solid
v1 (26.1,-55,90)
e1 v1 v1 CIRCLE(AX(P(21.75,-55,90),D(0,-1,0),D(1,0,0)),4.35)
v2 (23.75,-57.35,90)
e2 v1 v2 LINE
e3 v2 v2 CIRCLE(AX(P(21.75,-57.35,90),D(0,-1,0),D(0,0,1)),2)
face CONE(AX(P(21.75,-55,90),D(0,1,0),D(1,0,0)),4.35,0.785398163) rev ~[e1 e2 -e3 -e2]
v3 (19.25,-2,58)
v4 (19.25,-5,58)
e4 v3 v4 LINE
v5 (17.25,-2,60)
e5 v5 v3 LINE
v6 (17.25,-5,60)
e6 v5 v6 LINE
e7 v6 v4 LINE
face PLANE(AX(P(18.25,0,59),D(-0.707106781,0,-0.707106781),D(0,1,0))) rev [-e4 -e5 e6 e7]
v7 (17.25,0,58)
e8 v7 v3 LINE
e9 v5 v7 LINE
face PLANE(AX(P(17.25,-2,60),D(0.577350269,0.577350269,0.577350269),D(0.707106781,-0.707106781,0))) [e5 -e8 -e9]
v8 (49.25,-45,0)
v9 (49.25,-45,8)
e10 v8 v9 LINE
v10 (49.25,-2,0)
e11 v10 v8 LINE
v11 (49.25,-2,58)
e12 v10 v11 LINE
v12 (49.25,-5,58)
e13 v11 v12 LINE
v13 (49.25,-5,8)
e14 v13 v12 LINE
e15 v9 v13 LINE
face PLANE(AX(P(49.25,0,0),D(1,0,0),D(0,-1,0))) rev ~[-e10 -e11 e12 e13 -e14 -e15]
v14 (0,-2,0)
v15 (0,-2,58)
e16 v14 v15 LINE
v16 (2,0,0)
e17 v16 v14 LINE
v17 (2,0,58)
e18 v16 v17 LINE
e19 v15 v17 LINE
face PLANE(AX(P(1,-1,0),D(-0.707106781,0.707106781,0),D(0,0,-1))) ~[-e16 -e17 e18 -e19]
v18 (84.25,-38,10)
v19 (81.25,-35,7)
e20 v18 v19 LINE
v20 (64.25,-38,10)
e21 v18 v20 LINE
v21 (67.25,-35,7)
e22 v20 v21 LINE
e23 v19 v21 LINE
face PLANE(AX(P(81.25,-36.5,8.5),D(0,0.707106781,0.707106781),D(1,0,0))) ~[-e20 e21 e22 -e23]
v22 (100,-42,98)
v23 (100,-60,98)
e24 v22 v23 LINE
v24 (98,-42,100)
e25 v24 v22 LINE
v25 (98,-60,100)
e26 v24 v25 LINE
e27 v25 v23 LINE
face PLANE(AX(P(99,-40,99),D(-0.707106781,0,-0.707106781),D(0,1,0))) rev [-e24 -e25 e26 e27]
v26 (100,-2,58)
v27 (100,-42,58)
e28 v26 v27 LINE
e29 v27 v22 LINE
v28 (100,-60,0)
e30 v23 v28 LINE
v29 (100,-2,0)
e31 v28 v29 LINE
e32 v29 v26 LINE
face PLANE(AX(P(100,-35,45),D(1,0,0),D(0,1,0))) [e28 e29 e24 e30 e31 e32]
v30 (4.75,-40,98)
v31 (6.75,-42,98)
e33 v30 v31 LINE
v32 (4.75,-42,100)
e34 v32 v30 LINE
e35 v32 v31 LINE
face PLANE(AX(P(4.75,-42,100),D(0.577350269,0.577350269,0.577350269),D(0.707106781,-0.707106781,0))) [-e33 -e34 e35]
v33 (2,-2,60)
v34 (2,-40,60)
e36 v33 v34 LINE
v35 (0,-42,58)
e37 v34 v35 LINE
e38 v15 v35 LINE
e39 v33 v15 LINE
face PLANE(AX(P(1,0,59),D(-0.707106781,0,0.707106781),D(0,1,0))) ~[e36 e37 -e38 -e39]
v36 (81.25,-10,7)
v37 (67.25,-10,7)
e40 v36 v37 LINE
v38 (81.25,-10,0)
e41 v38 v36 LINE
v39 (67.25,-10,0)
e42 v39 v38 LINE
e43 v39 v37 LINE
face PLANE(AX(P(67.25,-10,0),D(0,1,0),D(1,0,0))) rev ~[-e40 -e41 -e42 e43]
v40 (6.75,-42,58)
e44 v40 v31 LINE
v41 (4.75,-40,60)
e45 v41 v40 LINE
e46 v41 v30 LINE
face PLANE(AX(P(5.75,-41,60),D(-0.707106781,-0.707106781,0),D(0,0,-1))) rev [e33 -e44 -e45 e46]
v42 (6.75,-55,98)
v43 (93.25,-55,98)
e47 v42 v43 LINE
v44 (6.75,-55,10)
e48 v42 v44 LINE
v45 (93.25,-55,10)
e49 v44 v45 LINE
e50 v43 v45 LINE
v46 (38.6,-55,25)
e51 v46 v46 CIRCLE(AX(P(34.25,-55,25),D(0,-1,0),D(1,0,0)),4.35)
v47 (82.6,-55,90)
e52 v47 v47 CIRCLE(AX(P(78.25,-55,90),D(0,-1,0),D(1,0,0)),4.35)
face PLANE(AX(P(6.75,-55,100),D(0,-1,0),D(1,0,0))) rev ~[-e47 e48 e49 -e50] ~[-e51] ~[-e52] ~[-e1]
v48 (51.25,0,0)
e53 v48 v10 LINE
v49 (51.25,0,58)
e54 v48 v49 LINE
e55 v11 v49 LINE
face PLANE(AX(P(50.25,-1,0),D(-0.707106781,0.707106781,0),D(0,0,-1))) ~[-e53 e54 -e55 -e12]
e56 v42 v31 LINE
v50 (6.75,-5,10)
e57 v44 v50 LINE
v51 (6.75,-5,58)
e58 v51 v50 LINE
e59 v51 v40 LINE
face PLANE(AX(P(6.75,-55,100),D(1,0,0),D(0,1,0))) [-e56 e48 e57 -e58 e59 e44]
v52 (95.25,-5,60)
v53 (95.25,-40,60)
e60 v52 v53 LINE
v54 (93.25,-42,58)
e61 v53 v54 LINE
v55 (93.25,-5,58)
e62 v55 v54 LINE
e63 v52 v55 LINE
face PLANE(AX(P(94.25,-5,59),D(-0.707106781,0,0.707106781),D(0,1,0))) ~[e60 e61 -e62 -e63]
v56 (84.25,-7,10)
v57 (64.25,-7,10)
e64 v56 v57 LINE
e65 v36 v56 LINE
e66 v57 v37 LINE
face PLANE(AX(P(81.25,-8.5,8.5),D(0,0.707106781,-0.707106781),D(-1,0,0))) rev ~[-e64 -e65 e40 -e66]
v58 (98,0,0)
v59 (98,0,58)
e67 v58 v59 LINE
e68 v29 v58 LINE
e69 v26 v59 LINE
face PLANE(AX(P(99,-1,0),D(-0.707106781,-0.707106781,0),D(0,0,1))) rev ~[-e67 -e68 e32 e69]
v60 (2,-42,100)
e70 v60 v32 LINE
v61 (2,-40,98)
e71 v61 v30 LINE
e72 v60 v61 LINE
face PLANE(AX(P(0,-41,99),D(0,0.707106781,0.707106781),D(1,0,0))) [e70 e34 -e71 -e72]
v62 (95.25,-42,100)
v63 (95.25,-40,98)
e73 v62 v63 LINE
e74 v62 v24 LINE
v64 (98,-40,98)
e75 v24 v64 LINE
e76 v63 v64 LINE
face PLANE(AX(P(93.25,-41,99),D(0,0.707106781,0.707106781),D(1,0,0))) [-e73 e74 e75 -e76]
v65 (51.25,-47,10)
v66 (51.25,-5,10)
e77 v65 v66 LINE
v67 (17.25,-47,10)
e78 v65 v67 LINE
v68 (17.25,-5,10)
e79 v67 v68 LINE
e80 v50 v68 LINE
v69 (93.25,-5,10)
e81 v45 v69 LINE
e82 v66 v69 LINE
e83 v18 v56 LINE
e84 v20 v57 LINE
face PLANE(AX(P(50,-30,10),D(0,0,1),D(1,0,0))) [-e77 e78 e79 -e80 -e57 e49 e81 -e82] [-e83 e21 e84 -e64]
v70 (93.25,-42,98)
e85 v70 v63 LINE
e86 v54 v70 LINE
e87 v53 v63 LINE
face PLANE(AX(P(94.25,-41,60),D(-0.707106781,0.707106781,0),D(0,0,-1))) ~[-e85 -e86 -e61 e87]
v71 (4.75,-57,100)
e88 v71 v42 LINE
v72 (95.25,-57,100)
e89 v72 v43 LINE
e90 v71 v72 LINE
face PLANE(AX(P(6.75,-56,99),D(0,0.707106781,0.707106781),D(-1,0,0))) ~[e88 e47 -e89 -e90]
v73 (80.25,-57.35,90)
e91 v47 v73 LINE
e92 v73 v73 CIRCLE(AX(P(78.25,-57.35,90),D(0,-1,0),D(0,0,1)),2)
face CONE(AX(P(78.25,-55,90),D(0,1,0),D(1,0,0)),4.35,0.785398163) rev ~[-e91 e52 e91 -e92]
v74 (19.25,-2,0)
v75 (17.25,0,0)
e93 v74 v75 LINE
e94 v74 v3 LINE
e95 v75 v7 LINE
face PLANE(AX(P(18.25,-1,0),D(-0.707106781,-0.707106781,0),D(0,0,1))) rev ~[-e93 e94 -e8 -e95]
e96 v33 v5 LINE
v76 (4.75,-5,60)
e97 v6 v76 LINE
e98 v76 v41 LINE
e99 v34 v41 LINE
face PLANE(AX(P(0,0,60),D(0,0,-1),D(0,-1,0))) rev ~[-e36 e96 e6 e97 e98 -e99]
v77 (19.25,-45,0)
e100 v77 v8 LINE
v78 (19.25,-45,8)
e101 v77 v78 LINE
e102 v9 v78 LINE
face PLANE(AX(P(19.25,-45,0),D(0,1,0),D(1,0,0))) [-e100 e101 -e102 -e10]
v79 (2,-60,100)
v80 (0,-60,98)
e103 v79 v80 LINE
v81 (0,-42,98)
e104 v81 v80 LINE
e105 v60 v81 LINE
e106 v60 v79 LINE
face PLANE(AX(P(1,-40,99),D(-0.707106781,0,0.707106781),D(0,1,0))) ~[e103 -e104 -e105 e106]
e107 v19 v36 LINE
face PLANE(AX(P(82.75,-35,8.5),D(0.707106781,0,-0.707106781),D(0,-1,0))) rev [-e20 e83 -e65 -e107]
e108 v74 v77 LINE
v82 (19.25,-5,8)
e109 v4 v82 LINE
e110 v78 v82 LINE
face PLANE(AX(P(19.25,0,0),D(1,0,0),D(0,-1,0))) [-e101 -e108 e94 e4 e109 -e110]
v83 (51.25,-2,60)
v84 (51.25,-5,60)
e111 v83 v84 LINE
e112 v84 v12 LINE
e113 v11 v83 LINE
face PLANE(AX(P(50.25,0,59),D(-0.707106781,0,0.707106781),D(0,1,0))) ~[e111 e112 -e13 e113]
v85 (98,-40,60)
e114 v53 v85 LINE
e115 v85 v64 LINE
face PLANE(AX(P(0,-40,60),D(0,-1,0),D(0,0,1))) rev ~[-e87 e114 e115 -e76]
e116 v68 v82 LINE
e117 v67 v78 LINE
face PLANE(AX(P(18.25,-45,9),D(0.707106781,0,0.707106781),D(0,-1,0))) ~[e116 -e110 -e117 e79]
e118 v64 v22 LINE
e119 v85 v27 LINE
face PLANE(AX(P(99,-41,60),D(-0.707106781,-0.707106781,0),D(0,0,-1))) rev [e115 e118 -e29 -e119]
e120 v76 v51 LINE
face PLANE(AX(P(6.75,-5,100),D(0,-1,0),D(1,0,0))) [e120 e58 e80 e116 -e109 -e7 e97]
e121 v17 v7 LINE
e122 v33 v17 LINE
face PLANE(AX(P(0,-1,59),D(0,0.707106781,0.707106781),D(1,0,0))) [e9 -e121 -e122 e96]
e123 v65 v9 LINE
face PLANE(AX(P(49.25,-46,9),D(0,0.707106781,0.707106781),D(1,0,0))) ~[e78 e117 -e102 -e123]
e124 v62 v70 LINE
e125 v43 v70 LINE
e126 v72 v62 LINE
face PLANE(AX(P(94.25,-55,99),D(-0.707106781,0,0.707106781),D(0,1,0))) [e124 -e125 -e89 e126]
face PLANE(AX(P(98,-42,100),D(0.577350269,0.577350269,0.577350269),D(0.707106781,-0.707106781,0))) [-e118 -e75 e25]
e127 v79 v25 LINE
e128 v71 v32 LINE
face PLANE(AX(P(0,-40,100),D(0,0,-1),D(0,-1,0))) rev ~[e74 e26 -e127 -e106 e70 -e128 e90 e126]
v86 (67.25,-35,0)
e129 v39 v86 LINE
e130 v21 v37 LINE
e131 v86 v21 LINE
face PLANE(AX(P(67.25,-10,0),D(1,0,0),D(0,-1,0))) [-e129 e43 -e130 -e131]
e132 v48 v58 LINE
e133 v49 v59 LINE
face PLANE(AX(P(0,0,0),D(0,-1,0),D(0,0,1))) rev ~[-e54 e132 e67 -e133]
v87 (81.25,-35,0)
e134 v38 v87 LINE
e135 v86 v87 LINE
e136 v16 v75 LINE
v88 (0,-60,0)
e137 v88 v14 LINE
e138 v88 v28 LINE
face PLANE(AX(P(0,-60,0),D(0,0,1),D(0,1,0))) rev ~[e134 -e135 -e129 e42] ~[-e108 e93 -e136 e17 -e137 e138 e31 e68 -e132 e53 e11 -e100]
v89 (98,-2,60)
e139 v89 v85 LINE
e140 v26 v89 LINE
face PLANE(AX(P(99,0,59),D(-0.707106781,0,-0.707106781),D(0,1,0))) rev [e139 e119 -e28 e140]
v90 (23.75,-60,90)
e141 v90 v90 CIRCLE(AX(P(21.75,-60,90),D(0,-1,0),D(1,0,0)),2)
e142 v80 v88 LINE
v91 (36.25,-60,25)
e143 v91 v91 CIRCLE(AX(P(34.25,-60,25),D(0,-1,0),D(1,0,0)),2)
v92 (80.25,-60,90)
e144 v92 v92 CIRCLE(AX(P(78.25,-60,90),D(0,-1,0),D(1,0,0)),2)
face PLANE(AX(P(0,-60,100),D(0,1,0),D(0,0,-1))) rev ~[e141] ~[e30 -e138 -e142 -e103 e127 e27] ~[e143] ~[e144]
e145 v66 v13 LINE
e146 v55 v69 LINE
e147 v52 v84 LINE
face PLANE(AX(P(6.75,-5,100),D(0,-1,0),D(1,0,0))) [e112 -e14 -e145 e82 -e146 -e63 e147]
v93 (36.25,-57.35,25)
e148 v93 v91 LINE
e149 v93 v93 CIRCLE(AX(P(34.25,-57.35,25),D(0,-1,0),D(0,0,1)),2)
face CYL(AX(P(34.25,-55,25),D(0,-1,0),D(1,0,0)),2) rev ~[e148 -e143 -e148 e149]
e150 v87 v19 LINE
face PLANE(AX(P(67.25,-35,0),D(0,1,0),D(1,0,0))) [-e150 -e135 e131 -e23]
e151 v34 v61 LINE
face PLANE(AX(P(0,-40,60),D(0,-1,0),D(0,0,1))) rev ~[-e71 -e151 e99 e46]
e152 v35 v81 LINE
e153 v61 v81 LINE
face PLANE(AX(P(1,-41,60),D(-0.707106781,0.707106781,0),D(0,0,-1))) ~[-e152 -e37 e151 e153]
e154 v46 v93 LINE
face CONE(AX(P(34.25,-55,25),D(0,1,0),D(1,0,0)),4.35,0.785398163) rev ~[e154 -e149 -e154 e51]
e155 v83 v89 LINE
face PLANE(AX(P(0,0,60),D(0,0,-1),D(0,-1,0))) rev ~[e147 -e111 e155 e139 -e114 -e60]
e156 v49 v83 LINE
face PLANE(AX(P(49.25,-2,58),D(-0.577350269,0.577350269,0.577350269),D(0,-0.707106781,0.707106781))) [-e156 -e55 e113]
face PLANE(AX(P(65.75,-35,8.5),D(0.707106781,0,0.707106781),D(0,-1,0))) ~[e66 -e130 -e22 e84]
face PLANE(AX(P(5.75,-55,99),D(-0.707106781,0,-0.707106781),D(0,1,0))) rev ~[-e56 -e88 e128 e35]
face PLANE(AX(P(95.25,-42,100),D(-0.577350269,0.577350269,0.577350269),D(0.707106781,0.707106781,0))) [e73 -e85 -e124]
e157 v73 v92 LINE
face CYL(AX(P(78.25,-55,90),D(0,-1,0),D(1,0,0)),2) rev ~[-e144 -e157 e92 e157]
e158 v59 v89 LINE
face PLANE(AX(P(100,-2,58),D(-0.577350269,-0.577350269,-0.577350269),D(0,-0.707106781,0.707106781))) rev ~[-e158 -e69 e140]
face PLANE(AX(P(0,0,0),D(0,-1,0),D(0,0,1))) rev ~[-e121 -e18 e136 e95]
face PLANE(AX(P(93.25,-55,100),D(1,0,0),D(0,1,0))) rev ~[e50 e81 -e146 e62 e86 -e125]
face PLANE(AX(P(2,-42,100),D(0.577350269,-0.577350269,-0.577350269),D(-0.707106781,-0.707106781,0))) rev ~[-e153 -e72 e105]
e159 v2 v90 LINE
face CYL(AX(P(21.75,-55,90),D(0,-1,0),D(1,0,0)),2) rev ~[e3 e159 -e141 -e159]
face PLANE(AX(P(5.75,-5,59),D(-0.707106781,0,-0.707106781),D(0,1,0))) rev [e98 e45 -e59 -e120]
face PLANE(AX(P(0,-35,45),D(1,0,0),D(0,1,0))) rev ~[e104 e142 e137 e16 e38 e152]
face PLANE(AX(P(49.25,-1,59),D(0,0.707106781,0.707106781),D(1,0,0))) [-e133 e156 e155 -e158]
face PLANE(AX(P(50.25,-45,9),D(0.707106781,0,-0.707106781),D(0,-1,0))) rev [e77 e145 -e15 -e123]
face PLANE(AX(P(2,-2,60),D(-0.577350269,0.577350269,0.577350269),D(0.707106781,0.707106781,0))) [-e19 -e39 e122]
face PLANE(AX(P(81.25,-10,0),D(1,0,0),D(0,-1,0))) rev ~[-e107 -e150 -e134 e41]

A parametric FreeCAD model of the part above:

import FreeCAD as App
import Part
import Sketcher

V = App.Vector


def edges_at(feature, points):
    """Names of the edges that pass closest to the given points."""
    edges = feature.Shape.Edges
    near = lambda p: min(range(len(edges)), key=lambda i: edges[i].distToShape(Part.Vertex(*p))[0])
    return sorted({f"Edge{near(p) + 1}" for p in points})


def add_polygon(sketch, points):
    """Adds a closed chain of lines whose ends are joined by coincident constraints."""
    first, n = sketch.GeometryCount, len(points)
    for a, b in zip(points, points[1:] + points[:1]):
        sketch.addGeometry(Part.LineSegment(App.Vector(*a, 0), App.Vector(*b, 0)), False)
    for i in range(n):
        sketch.addConstraint(Sketcher.Constraint("Coincident", first + i, 2, first + (i + 1) % n, 1))

doc = App.newDocument("Part")
params = doc.addObject("Spreadsheet::Sheet", "Params")
for row, (alias, value) in enumerate([
    ("sketch1_width", "60 mm"),
    ("sketch1_width2", "40 mm"),
    ("pad1_length", "100 mm"),
    ("sketch2_height", "50 mm"),
    ("sketch2_width", "86.5 mm"),
    ("pocket1_length", "90 mm"),
    ("sketch3_width", "30 mm"),
    ("sketch3_width2", "14 mm"),
    ("sketch3_height", "45 mm"),
    ("sketch3_height2", "25 mm"),
    ("pocket2_length", "60 mm"),
    ("sketch4_diameter", "4 mm"),
    ("hole_diameter", "4 mm"),
    ("hole_csink_diameter", "8.7 mm"),
    ("chamfer_size", "2 mm"),
    ("chamfer2_size", "3 mm"),
], start=1):
    params.set(f"A{row}", alias)
    params.set(f"B{row}", "=" + value)
    params.setAlias(f"B{row}", alias)

body = doc.addObject("PartDesign::Body", "Body")

sketch1 = body.newObject("Sketcher::SketchObject", "Sketch")
sketch1.AttachmentSupport = (doc.getObject("YZ_Plane"), [""])
sketch1.MapMode = "FlatFace"
add_polygon(sketch1, [(-60, 0), (0, 0), (0, 60), (-40, 60), (-40, 100), (-60, 100)])
sketch1.addConstraint([
    Sketcher.Constraint("Horizontal", 0),
    Sketcher.Constraint("Vertical", 1),
    Sketcher.Constraint("Horizontal", 2),
    Sketcher.Constraint("Vertical", 3),
    Sketcher.Constraint("Horizontal", 4),
    Sketcher.Constraint("Vertical", 5),
    Sketcher.Constraint("Coincident", 0, 2, -1, 1),
    Sketcher.Constraint("Equal", 0, 1),
    Sketcher.Constraint("Equal", 2, 3),
    Sketcher.Constraint("DistanceX", 0, 1, 0, 2, 60.0),
    Sketcher.Constraint("DistanceX", 2, 2, 2, 1, 40.0),
])
sketch1.setExpression("Constraints[15]", "Params.sketch1_width")
sketch1.setExpression("Constraints[16]", "Params.sketch1_width2")
pad1 = body.newObject("PartDesign::Pad", "Pad")
pad1.Profile = sketch1
pad1.setExpression("Length", "Params.pad1_length")

sketch2 = body.newObject("Sketcher::SketchObject", "Sketch001")
sketch2.AttachmentSupport = (doc.getObject("XY_Plane"), [""])
sketch2.MapMode = "FlatFace"
sketch2.AttachmentOffset = App.Placement(V(0, 0, 100), App.Rotation())
add_polygon(sketch2, [(6.75, -5), (6.75, -55), (93.25, -55), (93.25, -5)])
sketch2.addConstraint([
    Sketcher.Constraint("Vertical", 0),
    Sketcher.Constraint("Horizontal", 1),
    Sketcher.Constraint("Vertical", 2),
    Sketcher.Constraint("Horizontal", 3),
    Sketcher.Constraint("DistanceY", 0, 2, 0, 1, 50.0),
    Sketcher.Constraint("DistanceX", 1, 1, 1, 2, 86.5),
    Sketcher.Constraint("DistanceY", 0, 2, -1, 1, 55.0),
    Sketcher.Constraint("DistanceX", -1, 1, 0, 2, 6.75),
])
sketch2.setExpression("Constraints[8]", "Params.sketch2_height")
sketch2.setExpression("Constraints[9]", "Params.sketch2_width")
pocket1 = body.newObject("PartDesign::Pocket", "Pocket")
pocket1.Profile = sketch2
pocket1.setExpression("Length", "Params.pocket1_length")

sketch3 = body.newObject("Sketcher::SketchObject", "Sketch002")
sketch3.AttachmentSupport = (doc.getObject("XY_Plane"), [""])
sketch3.MapMode = "FlatFace"
add_polygon(sketch3, [(19.25, -45), (19.25, 0), (49.25, 0), (49.25, -45)])
add_polygon(sketch3, [(67.25, -35), (67.25, -10), (81.25, -10), (81.25, -35)])
sketch3.addConstraint([
    Sketcher.Constraint("Vertical", 0),
    Sketcher.Constraint("Horizontal", 1),
    Sketcher.Constraint("Vertical", 2),
    Sketcher.Constraint("Horizontal", 3),
    Sketcher.Constraint("Vertical", 4),
    Sketcher.Constraint("Horizontal", 5),
    Sketcher.Constraint("Vertical", 6),
    Sketcher.Constraint("Horizontal", 7),
    Sketcher.Constraint("PointOnObject", 0, 2, -1),
    Sketcher.Constraint("DistanceX", 1, 1, 1, 2, 30.0),
    Sketcher.Constraint("DistanceX", 5, 1, 5, 2, 14.0),
    Sketcher.Constraint("DistanceY", 0, 1, 0, 2, 45.0),
    Sketcher.Constraint("DistanceY", 4, 1, 4, 2, 25.0),
    Sketcher.Constraint("DistanceY", 4, 2, -1, 1, 10.0),
    Sketcher.Constraint("DistanceX", 1, 2, 4, 2, 18.0),
    Sketcher.Constraint("DistanceX", -1, 1, 0, 2, 19.25),
])
sketch3.setExpression("Constraints[17]", "Params.sketch3_width")
sketch3.setExpression("Constraints[18]", "Params.sketch3_width2")
sketch3.setExpression("Constraints[19]", "Params.sketch3_height")
sketch3.setExpression("Constraints[20]", "Params.sketch3_height2")
pocket2 = body.newObject("PartDesign::Pocket", "Pocket001")
pocket2.Profile = sketch3
pocket2.setExpression("Length", "Params.pocket2_length")
pocket2.Reversed = True

sketch4 = body.newObject("Sketcher::SketchObject", "Sketch003")
sketch4.AttachmentSupport = (doc.getObject("XZ_Plane"), [""])
sketch4.MapMode = "FlatFace"
sketch4.AttachmentOffset = App.Placement(V(0, 0, 55), App.Rotation())
sketch4.addGeometry([
    Part.Circle(V(78.25, 90, 0), V(0, 0, 1), 2),
    Part.Circle(V(21.75, 90, 0), V(0, 0, 1), 2),
    Part.Circle(V(34.25, 25, 0), V(0, 0, 1), 2),
], False)
sketch4.addConstraint([
    Sketcher.Constraint("Equal", 0, 1),
    Sketcher.Constraint("Equal", 1, 2),
    Sketcher.Constraint("Horizontal", 0, 3, 1, 3),
    Sketcher.Constraint("Diameter", 0, 4.0),
    Sketcher.Constraint("DistanceY", -1, 1, 0, 3, 90.0),
    Sketcher.Constraint("DistanceY", -1, 1, 2, 3, 25.0),
    Sketcher.Constraint("DistanceX", 2, 3, 0, 3, 44.0),
    Sketcher.Constraint("DistanceX", 1, 3, 0, 3, 56.5),
    Sketcher.Constraint("DistanceX", -1, 1, 0, 3, 78.25),
])
sketch4.setExpression("Constraints[3]", "Params.sketch4_diameter")
doc.recompute()
hole = body.newObject("PartDesign::Hole", "Hole")
hole.Profile = sketch4
hole.ThreadType = "None"
hole.setExpression("Diameter", "Params.hole_diameter")
hole.DepthType = "ThroughAll"
hole.HoleCutType = "Countersink"
hole.setExpression("HoleCutDiameter", "Params.hole_csink_diameter")
hole.HoleCutCountersinkAngle = 90
hole.Reversed = True
doc.recompute()

chamfer = body.newObject("PartDesign::Chamfer", "Chamfer")
chamfer.Base = (hole, edges_at(hole, [
    (74.625, 0, 60),
    (100, 0, 30),
    (0, 0, 30),
    (19.25, 0, 30),
    (49.25, -25, 10),
    (34.25, -45, 10),
    (49.25, 0, 30),
    (100, -20, 60),
    (93.25, -22.5, 60),
    (6.75, -22.5, 60),
    (0, -20, 60),
    (9.625, 0, 60),
    (0, -40, 80),
    (6.75, -40, 80),
    (93.25, -40, 80),
    (100, -40, 80),
    (3.375, -40, 100),
    (0, -50, 100),
    (6.75, -47.5, 100),
    (93.25, -47.5, 100),
    (96.625, -40, 100),
    (100, -50, 100),
    (50, -55, 100),
    (19.25, -2.5, 60),
    (49.25, -2.5, 60),
    (19.25, -25, 10),
]))
chamfer.setExpression("Size", "Params.chamfer_size")
doc.recompute()

chamfer2 = body.newObject("PartDesign::Chamfer", "Chamfer001")
chamfer2.Base = (chamfer, edges_at(chamfer, [
    (67.25, -22.5, 10),
    (74.25, -10, 10),
    (81.25, -22.5, 10),
    (74.25, -35, 10),
]))
chamfer2.setExpression("Size", "Params.chamfer2_size")

doc.recompute()
